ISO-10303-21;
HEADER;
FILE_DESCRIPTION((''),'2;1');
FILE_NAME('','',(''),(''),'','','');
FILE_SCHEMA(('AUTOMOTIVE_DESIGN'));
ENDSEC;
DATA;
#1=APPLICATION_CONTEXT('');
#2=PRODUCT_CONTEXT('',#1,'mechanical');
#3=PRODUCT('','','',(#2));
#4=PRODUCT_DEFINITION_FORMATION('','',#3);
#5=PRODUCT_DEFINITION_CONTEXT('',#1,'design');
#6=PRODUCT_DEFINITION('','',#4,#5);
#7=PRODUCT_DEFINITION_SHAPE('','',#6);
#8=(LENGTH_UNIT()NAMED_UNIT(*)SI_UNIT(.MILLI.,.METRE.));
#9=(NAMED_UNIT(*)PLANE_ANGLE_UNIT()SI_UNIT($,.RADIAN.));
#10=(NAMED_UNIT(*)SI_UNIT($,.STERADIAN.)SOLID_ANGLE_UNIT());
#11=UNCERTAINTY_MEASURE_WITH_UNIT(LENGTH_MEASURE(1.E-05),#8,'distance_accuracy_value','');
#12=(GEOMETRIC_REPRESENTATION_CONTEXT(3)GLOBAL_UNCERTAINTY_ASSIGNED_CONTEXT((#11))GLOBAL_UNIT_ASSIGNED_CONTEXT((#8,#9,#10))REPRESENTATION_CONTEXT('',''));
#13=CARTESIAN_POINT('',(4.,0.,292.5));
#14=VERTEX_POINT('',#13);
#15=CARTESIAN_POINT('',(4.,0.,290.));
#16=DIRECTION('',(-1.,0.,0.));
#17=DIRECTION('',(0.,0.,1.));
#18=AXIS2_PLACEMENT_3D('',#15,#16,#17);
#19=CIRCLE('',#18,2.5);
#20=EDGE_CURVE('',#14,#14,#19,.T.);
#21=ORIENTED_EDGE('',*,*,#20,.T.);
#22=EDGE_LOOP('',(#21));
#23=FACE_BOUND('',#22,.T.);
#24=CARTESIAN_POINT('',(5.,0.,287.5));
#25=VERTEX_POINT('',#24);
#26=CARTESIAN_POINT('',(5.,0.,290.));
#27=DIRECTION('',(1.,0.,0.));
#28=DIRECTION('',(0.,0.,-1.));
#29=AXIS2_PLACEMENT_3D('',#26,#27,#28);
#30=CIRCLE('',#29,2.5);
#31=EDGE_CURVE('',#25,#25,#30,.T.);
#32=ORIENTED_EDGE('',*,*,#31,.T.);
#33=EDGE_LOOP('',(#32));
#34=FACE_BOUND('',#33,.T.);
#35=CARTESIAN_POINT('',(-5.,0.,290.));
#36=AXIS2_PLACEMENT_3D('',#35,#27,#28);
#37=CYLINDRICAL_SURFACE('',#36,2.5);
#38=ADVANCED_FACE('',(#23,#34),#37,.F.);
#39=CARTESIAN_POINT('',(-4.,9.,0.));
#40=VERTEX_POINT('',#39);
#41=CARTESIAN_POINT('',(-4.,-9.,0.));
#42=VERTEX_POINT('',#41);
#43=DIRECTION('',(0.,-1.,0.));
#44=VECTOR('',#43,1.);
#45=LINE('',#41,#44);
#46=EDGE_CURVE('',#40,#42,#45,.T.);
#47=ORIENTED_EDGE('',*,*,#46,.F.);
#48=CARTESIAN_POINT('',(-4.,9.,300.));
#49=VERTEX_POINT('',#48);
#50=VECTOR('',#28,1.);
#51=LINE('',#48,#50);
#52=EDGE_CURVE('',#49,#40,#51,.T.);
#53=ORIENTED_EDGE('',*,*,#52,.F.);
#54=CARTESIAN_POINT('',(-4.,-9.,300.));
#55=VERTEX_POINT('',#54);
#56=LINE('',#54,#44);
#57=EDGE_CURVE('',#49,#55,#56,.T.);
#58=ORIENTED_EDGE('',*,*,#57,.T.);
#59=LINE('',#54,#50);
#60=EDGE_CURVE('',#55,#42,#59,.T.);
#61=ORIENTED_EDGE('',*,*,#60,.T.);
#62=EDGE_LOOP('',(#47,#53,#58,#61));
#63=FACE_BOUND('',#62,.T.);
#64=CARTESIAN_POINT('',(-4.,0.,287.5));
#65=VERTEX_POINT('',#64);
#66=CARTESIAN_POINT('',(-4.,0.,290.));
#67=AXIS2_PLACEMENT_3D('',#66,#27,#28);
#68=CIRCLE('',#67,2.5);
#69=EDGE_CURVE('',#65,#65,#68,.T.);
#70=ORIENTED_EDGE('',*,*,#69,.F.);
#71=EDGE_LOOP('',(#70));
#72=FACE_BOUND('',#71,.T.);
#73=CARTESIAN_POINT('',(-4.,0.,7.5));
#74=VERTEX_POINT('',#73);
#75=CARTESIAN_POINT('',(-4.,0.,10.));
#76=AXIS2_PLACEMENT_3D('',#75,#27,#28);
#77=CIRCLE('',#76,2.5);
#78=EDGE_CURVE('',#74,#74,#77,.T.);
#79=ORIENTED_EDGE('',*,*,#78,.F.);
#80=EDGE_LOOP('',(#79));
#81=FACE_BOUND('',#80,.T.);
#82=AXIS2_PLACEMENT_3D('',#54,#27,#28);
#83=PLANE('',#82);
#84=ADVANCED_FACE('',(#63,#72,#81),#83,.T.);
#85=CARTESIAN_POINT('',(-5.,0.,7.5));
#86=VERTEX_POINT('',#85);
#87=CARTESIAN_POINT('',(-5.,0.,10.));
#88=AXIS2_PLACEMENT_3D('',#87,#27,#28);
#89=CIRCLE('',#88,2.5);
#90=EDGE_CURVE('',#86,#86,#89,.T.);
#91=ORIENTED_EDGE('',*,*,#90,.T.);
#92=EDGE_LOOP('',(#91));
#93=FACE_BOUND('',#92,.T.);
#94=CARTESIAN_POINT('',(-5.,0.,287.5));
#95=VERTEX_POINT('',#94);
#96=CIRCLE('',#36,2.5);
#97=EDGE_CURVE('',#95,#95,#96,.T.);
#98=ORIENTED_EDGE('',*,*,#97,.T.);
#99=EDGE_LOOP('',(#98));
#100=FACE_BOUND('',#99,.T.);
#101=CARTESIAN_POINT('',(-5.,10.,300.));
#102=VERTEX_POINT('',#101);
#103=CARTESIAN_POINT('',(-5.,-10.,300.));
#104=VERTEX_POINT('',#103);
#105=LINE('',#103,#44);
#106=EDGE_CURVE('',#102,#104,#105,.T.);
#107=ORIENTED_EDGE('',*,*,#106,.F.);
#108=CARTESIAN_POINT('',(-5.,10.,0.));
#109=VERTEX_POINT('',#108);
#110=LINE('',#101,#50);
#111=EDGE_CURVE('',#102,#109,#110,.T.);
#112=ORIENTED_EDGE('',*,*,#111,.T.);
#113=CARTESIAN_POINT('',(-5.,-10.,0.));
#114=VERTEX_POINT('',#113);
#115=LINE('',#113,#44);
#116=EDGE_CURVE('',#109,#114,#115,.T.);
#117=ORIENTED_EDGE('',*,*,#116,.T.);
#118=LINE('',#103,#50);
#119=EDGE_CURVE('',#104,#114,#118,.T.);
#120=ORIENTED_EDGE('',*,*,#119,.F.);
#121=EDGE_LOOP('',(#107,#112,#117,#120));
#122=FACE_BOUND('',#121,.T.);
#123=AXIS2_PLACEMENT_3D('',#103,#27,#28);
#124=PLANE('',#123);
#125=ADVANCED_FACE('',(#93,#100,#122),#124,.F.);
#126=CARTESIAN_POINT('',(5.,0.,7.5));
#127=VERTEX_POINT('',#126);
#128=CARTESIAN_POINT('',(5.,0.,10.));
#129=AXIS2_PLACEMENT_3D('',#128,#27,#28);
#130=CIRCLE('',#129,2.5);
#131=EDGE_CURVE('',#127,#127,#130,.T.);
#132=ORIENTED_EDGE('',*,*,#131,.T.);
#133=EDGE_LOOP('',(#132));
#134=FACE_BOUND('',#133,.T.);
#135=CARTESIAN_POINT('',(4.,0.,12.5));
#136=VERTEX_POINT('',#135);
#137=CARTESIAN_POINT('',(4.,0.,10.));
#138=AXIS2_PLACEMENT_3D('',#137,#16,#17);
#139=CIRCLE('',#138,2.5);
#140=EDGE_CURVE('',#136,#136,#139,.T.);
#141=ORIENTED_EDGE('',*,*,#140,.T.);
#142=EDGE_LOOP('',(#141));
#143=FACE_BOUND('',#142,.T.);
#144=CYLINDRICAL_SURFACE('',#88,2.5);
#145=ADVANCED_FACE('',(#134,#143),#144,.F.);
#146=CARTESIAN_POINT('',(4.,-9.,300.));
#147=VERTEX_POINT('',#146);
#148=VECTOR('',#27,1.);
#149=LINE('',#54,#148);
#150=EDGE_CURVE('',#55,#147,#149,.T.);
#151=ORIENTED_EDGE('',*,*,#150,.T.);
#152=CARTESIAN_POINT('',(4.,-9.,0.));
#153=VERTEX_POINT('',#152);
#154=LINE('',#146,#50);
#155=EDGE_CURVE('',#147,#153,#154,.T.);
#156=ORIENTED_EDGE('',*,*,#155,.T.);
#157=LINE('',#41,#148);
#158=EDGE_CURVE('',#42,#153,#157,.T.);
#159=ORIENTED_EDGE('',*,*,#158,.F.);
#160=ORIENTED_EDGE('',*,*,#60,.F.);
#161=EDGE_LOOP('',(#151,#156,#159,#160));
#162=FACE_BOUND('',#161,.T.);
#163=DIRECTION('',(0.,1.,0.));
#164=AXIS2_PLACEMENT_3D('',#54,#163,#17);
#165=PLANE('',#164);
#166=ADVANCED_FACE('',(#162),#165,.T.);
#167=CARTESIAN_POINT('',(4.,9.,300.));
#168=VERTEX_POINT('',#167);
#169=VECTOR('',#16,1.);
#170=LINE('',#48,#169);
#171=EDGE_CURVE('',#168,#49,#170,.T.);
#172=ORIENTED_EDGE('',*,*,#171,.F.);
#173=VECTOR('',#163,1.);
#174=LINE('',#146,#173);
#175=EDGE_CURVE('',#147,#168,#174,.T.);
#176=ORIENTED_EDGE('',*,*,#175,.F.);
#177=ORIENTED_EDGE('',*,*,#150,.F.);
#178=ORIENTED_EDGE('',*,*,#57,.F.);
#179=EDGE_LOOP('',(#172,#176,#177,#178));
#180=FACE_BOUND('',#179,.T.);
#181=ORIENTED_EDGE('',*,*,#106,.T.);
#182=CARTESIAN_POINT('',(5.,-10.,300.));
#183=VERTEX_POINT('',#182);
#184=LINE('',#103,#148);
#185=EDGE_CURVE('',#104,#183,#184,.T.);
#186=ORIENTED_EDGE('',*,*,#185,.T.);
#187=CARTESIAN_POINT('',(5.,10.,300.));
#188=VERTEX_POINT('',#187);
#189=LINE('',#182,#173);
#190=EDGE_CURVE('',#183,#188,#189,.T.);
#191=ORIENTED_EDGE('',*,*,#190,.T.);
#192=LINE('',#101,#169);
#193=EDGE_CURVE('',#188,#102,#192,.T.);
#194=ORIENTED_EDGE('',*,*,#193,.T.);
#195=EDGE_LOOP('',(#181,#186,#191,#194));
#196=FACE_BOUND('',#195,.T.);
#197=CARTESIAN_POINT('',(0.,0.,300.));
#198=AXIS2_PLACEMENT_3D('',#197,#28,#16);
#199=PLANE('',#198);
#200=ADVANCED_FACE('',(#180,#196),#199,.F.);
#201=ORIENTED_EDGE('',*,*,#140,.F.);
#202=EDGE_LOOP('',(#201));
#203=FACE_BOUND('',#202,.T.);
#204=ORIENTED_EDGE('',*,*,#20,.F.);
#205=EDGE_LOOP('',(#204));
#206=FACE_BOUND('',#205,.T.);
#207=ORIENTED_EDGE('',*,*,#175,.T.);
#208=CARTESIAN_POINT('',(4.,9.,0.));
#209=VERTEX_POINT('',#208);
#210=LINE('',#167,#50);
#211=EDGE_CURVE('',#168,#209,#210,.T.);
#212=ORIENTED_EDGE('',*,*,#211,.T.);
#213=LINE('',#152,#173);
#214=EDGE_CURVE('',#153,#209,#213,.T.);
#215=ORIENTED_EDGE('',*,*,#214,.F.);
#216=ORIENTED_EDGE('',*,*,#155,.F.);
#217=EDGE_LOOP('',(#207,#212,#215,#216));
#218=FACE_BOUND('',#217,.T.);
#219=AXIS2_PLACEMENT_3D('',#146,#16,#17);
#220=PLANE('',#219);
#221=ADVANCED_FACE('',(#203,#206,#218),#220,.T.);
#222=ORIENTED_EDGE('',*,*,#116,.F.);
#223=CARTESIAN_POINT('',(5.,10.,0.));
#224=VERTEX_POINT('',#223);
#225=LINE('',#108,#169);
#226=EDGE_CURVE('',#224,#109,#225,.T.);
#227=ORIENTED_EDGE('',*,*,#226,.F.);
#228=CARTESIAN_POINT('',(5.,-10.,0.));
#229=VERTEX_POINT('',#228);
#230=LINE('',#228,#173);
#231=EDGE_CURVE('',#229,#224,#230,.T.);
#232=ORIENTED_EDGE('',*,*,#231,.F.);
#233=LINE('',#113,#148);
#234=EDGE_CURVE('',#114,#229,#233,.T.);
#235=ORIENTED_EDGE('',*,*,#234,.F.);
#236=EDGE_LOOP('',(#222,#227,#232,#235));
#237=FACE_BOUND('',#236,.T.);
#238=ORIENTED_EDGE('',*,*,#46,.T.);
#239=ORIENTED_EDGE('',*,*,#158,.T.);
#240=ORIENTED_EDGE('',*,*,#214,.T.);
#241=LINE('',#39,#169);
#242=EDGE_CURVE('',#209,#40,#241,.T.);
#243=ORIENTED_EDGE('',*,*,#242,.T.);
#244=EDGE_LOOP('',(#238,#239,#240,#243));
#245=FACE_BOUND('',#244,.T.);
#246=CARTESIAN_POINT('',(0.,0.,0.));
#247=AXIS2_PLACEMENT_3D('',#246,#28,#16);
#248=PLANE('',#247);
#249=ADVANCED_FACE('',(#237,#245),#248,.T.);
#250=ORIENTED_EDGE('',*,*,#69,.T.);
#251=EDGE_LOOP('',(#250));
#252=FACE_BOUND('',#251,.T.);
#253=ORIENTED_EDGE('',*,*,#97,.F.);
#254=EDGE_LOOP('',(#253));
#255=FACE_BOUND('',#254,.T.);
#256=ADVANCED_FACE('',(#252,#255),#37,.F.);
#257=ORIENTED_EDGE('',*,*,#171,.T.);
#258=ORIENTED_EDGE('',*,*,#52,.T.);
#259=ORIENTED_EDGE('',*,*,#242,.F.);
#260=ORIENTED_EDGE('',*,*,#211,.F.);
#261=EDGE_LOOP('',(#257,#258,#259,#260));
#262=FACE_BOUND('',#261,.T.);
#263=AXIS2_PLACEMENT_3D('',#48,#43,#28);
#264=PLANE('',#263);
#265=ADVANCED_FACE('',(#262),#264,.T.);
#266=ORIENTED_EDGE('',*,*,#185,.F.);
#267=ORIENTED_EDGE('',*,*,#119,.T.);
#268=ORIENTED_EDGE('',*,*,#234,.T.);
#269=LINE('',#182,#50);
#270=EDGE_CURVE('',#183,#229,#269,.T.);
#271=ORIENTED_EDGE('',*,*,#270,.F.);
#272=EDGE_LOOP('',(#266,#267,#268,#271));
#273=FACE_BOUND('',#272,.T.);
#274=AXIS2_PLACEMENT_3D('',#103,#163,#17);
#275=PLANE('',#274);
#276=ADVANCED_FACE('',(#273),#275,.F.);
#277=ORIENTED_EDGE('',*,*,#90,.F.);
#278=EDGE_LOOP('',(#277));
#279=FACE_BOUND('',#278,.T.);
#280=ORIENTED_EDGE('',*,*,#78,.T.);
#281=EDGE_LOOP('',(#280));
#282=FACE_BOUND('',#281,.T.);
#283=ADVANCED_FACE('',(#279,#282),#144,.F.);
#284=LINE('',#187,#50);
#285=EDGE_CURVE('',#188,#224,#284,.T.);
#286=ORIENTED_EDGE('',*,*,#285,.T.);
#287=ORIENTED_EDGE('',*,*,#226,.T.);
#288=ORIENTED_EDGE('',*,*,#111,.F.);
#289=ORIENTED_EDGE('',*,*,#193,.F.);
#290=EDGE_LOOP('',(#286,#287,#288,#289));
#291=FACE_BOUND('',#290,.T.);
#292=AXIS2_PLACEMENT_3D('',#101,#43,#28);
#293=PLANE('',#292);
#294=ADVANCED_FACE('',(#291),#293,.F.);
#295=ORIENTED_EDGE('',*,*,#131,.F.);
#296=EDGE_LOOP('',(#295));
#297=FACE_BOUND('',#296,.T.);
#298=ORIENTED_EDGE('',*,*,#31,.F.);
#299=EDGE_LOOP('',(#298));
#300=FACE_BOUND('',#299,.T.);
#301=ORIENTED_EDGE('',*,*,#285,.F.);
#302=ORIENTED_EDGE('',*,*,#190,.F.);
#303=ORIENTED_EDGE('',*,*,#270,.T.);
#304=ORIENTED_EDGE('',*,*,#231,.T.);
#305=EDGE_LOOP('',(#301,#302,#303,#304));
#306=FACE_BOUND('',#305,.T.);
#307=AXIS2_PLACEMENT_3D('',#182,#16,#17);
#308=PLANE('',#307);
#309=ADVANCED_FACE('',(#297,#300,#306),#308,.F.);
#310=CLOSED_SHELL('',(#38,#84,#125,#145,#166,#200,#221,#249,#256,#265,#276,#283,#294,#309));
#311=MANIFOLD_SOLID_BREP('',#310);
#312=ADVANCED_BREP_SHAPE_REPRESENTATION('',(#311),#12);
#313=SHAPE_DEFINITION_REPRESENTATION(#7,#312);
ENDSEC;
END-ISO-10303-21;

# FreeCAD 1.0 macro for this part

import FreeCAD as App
import Part
import Sketcher

V = App.Vector
Q = App.Units.Quantity

doc = App.newDocument("Part")
body = doc.addObject("PartDesign::Body", "Body")

# Sketch on XY plane
sketch1 = body.newObject("Sketcher::SketchObject", "Sketch")
sketch1.AttachmentSupport = (doc.getObject("XY_Plane"), [""])
sketch1.MapMode = "FlatFace"
sketch1.addGeometry([
    Part.LineSegment(V(-5, 10, 0), V(-5, -10, 0)),  # 0
    Part.LineSegment(V(-5, -10, 0), V(5, -10, 0)),  # 1
    Part.LineSegment(V(5, -10, 0), V(5, 10, 0)),  # 2
    Part.LineSegment(V(5, 10, 0), V(-5, 10, 0)),  # 3
    Part.LineSegment(V(4, -9, 0), V(-4, -9, 0)),  # 4
    Part.LineSegment(V(-4, -9, 0), V(-4, 9, 0)),  # 5
    Part.LineSegment(V(-4, 9, 0), V(4, 9, 0)),  # 6
    Part.LineSegment(V(4, 9, 0), V(4, -9, 0)),  # 7
], False)
sketch1.addConstraint([
    Sketcher.Constraint("Coincident", 0, 2, 1, 1),
    Sketcher.Constraint("Coincident", 1, 2, 2, 1),
    Sketcher.Constraint("Coincident", 2, 2, 3, 1),
    Sketcher.Constraint("Coincident", 3, 2, 0, 1),
    Sketcher.Constraint("Coincident", 4, 2, 5, 1),
    Sketcher.Constraint("Coincident", 5, 2, 6, 1),
    Sketcher.Constraint("Coincident", 6, 2, 7, 1),
    Sketcher.Constraint("Coincident", 7, 2, 4, 1),
    Sketcher.Constraint("Vertical", 0),
    Sketcher.Constraint("Horizontal", 1),
    Sketcher.Constraint("Vertical", 2),
    Sketcher.Constraint("Horizontal", 3),
    Sketcher.Constraint("Horizontal", 4),
    Sketcher.Constraint("Vertical", 5),
    Sketcher.Constraint("Horizontal", 6),
    Sketcher.Constraint("Vertical", 7),
    Sketcher.Constraint("Symmetric", 0, 2, 2, 2, -1, 1),
    Sketcher.Constraint("Symmetric", 4, 2, 6, 2, -1, 1),
    Sketcher.Constraint("DistanceX", 1, 1, 1, 2, Q("10 mm")),
    Sketcher.Constraint("DistanceX", 4, 2, 4, 1, Q("8 mm")),
    Sketcher.Constraint("DistanceY", 0, 2, 0, 1, Q("20 mm")),
    Sketcher.Constraint("DistanceY", 5, 1, 5, 2, Q("18 mm")),
])
pad1 = body.newObject("PartDesign::Pad", "Pad")
pad1.Profile = sketch1
pad1.Length = 300

# Sketch on YZ plane
sketch2 = body.newObject("Sketcher::SketchObject", "Sketch001")
sketch2.AttachmentSupport = (doc.getObject("YZ_Plane"), [""])
sketch2.MapMode = "FlatFace"
sketch2.AttachmentOffset = App.Placement(V(0, 0, 5), App.Rotation())
sketch2.addGeometry([
    Part.Circle(V(0, 10, 0), V(0, 0, 1), 2.5),
    Part.Circle(V(0, 290, 0), V(0, 0, 1), 2.5),
], False)
sketch2.addConstraint([
    Sketcher.Constraint("Equal", 0, 1),
    Sketcher.Constraint("PointOnObject", 0, 3, -2),
    Sketcher.Constraint("PointOnObject", 1, 3, -2),
    Sketcher.Constraint("Diameter", 0, Q("5 mm")),
    Sketcher.Constraint("DistanceY", -1, 1, 0, 3, Q("10 mm")),
    Sketcher.Constraint("DistanceY", -1, 1, 1, 3, Q("290 mm")),
])
pocket1 = body.newObject("PartDesign::Pocket", "Pocket")
pocket1.Profile = sketch2
pocket1.Type = "ThroughAll"

doc.recompute()
